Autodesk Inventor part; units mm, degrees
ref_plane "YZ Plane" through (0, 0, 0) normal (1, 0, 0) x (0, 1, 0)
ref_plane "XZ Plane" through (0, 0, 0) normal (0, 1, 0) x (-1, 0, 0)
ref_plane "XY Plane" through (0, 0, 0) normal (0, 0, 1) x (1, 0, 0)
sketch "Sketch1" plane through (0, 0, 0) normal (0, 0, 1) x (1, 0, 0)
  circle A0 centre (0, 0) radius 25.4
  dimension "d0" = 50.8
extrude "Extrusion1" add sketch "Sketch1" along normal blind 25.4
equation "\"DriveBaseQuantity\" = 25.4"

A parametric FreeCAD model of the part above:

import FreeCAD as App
import Part
import Sketcher

V = App.Vector
Q = App.Units.Quantity

doc = App.newDocument("Part")
params = doc.addObject("Spreadsheet::Sheet", "Params")
for row, (alias, value) in enumerate([
    ("sketch1_diameter", "2 in"),
    ("pad1_length", "1 in"),
], start=1):
    params.set(f"A{row}", alias)
    params.set(f"B{row}", "=" + value)
    params.setAlias(f"B{row}", alias)

body = doc.addObject("PartDesign::Body", "Body")

# Sketch on XY plane
sketch1 = body.newObject("Sketcher::SketchObject", "Sketch")
sketch1.AttachmentSupport = (doc.getObject("XY_Plane"), [""])
sketch1.MapMode = "FlatFace"
sketch1.addGeometry(Part.Circle(V(0, 0, 0), V(0, 0, 1), 25), False)
sketch1.addConstraint([
    Sketcher.Constraint("Coincident", 0, 3, -1, 1),
    Sketcher.Constraint("Diameter", 0, Q("2 in")),
])
sketch1.setExpression("Constraints[1]", "Params.sketch1_diameter")
pad1 = body.newObject("PartDesign::Pad", "Pad")
pad1.Profile = sketch1
pad1.setExpression("Length", "Params.pad1_length")

doc.recompute()
